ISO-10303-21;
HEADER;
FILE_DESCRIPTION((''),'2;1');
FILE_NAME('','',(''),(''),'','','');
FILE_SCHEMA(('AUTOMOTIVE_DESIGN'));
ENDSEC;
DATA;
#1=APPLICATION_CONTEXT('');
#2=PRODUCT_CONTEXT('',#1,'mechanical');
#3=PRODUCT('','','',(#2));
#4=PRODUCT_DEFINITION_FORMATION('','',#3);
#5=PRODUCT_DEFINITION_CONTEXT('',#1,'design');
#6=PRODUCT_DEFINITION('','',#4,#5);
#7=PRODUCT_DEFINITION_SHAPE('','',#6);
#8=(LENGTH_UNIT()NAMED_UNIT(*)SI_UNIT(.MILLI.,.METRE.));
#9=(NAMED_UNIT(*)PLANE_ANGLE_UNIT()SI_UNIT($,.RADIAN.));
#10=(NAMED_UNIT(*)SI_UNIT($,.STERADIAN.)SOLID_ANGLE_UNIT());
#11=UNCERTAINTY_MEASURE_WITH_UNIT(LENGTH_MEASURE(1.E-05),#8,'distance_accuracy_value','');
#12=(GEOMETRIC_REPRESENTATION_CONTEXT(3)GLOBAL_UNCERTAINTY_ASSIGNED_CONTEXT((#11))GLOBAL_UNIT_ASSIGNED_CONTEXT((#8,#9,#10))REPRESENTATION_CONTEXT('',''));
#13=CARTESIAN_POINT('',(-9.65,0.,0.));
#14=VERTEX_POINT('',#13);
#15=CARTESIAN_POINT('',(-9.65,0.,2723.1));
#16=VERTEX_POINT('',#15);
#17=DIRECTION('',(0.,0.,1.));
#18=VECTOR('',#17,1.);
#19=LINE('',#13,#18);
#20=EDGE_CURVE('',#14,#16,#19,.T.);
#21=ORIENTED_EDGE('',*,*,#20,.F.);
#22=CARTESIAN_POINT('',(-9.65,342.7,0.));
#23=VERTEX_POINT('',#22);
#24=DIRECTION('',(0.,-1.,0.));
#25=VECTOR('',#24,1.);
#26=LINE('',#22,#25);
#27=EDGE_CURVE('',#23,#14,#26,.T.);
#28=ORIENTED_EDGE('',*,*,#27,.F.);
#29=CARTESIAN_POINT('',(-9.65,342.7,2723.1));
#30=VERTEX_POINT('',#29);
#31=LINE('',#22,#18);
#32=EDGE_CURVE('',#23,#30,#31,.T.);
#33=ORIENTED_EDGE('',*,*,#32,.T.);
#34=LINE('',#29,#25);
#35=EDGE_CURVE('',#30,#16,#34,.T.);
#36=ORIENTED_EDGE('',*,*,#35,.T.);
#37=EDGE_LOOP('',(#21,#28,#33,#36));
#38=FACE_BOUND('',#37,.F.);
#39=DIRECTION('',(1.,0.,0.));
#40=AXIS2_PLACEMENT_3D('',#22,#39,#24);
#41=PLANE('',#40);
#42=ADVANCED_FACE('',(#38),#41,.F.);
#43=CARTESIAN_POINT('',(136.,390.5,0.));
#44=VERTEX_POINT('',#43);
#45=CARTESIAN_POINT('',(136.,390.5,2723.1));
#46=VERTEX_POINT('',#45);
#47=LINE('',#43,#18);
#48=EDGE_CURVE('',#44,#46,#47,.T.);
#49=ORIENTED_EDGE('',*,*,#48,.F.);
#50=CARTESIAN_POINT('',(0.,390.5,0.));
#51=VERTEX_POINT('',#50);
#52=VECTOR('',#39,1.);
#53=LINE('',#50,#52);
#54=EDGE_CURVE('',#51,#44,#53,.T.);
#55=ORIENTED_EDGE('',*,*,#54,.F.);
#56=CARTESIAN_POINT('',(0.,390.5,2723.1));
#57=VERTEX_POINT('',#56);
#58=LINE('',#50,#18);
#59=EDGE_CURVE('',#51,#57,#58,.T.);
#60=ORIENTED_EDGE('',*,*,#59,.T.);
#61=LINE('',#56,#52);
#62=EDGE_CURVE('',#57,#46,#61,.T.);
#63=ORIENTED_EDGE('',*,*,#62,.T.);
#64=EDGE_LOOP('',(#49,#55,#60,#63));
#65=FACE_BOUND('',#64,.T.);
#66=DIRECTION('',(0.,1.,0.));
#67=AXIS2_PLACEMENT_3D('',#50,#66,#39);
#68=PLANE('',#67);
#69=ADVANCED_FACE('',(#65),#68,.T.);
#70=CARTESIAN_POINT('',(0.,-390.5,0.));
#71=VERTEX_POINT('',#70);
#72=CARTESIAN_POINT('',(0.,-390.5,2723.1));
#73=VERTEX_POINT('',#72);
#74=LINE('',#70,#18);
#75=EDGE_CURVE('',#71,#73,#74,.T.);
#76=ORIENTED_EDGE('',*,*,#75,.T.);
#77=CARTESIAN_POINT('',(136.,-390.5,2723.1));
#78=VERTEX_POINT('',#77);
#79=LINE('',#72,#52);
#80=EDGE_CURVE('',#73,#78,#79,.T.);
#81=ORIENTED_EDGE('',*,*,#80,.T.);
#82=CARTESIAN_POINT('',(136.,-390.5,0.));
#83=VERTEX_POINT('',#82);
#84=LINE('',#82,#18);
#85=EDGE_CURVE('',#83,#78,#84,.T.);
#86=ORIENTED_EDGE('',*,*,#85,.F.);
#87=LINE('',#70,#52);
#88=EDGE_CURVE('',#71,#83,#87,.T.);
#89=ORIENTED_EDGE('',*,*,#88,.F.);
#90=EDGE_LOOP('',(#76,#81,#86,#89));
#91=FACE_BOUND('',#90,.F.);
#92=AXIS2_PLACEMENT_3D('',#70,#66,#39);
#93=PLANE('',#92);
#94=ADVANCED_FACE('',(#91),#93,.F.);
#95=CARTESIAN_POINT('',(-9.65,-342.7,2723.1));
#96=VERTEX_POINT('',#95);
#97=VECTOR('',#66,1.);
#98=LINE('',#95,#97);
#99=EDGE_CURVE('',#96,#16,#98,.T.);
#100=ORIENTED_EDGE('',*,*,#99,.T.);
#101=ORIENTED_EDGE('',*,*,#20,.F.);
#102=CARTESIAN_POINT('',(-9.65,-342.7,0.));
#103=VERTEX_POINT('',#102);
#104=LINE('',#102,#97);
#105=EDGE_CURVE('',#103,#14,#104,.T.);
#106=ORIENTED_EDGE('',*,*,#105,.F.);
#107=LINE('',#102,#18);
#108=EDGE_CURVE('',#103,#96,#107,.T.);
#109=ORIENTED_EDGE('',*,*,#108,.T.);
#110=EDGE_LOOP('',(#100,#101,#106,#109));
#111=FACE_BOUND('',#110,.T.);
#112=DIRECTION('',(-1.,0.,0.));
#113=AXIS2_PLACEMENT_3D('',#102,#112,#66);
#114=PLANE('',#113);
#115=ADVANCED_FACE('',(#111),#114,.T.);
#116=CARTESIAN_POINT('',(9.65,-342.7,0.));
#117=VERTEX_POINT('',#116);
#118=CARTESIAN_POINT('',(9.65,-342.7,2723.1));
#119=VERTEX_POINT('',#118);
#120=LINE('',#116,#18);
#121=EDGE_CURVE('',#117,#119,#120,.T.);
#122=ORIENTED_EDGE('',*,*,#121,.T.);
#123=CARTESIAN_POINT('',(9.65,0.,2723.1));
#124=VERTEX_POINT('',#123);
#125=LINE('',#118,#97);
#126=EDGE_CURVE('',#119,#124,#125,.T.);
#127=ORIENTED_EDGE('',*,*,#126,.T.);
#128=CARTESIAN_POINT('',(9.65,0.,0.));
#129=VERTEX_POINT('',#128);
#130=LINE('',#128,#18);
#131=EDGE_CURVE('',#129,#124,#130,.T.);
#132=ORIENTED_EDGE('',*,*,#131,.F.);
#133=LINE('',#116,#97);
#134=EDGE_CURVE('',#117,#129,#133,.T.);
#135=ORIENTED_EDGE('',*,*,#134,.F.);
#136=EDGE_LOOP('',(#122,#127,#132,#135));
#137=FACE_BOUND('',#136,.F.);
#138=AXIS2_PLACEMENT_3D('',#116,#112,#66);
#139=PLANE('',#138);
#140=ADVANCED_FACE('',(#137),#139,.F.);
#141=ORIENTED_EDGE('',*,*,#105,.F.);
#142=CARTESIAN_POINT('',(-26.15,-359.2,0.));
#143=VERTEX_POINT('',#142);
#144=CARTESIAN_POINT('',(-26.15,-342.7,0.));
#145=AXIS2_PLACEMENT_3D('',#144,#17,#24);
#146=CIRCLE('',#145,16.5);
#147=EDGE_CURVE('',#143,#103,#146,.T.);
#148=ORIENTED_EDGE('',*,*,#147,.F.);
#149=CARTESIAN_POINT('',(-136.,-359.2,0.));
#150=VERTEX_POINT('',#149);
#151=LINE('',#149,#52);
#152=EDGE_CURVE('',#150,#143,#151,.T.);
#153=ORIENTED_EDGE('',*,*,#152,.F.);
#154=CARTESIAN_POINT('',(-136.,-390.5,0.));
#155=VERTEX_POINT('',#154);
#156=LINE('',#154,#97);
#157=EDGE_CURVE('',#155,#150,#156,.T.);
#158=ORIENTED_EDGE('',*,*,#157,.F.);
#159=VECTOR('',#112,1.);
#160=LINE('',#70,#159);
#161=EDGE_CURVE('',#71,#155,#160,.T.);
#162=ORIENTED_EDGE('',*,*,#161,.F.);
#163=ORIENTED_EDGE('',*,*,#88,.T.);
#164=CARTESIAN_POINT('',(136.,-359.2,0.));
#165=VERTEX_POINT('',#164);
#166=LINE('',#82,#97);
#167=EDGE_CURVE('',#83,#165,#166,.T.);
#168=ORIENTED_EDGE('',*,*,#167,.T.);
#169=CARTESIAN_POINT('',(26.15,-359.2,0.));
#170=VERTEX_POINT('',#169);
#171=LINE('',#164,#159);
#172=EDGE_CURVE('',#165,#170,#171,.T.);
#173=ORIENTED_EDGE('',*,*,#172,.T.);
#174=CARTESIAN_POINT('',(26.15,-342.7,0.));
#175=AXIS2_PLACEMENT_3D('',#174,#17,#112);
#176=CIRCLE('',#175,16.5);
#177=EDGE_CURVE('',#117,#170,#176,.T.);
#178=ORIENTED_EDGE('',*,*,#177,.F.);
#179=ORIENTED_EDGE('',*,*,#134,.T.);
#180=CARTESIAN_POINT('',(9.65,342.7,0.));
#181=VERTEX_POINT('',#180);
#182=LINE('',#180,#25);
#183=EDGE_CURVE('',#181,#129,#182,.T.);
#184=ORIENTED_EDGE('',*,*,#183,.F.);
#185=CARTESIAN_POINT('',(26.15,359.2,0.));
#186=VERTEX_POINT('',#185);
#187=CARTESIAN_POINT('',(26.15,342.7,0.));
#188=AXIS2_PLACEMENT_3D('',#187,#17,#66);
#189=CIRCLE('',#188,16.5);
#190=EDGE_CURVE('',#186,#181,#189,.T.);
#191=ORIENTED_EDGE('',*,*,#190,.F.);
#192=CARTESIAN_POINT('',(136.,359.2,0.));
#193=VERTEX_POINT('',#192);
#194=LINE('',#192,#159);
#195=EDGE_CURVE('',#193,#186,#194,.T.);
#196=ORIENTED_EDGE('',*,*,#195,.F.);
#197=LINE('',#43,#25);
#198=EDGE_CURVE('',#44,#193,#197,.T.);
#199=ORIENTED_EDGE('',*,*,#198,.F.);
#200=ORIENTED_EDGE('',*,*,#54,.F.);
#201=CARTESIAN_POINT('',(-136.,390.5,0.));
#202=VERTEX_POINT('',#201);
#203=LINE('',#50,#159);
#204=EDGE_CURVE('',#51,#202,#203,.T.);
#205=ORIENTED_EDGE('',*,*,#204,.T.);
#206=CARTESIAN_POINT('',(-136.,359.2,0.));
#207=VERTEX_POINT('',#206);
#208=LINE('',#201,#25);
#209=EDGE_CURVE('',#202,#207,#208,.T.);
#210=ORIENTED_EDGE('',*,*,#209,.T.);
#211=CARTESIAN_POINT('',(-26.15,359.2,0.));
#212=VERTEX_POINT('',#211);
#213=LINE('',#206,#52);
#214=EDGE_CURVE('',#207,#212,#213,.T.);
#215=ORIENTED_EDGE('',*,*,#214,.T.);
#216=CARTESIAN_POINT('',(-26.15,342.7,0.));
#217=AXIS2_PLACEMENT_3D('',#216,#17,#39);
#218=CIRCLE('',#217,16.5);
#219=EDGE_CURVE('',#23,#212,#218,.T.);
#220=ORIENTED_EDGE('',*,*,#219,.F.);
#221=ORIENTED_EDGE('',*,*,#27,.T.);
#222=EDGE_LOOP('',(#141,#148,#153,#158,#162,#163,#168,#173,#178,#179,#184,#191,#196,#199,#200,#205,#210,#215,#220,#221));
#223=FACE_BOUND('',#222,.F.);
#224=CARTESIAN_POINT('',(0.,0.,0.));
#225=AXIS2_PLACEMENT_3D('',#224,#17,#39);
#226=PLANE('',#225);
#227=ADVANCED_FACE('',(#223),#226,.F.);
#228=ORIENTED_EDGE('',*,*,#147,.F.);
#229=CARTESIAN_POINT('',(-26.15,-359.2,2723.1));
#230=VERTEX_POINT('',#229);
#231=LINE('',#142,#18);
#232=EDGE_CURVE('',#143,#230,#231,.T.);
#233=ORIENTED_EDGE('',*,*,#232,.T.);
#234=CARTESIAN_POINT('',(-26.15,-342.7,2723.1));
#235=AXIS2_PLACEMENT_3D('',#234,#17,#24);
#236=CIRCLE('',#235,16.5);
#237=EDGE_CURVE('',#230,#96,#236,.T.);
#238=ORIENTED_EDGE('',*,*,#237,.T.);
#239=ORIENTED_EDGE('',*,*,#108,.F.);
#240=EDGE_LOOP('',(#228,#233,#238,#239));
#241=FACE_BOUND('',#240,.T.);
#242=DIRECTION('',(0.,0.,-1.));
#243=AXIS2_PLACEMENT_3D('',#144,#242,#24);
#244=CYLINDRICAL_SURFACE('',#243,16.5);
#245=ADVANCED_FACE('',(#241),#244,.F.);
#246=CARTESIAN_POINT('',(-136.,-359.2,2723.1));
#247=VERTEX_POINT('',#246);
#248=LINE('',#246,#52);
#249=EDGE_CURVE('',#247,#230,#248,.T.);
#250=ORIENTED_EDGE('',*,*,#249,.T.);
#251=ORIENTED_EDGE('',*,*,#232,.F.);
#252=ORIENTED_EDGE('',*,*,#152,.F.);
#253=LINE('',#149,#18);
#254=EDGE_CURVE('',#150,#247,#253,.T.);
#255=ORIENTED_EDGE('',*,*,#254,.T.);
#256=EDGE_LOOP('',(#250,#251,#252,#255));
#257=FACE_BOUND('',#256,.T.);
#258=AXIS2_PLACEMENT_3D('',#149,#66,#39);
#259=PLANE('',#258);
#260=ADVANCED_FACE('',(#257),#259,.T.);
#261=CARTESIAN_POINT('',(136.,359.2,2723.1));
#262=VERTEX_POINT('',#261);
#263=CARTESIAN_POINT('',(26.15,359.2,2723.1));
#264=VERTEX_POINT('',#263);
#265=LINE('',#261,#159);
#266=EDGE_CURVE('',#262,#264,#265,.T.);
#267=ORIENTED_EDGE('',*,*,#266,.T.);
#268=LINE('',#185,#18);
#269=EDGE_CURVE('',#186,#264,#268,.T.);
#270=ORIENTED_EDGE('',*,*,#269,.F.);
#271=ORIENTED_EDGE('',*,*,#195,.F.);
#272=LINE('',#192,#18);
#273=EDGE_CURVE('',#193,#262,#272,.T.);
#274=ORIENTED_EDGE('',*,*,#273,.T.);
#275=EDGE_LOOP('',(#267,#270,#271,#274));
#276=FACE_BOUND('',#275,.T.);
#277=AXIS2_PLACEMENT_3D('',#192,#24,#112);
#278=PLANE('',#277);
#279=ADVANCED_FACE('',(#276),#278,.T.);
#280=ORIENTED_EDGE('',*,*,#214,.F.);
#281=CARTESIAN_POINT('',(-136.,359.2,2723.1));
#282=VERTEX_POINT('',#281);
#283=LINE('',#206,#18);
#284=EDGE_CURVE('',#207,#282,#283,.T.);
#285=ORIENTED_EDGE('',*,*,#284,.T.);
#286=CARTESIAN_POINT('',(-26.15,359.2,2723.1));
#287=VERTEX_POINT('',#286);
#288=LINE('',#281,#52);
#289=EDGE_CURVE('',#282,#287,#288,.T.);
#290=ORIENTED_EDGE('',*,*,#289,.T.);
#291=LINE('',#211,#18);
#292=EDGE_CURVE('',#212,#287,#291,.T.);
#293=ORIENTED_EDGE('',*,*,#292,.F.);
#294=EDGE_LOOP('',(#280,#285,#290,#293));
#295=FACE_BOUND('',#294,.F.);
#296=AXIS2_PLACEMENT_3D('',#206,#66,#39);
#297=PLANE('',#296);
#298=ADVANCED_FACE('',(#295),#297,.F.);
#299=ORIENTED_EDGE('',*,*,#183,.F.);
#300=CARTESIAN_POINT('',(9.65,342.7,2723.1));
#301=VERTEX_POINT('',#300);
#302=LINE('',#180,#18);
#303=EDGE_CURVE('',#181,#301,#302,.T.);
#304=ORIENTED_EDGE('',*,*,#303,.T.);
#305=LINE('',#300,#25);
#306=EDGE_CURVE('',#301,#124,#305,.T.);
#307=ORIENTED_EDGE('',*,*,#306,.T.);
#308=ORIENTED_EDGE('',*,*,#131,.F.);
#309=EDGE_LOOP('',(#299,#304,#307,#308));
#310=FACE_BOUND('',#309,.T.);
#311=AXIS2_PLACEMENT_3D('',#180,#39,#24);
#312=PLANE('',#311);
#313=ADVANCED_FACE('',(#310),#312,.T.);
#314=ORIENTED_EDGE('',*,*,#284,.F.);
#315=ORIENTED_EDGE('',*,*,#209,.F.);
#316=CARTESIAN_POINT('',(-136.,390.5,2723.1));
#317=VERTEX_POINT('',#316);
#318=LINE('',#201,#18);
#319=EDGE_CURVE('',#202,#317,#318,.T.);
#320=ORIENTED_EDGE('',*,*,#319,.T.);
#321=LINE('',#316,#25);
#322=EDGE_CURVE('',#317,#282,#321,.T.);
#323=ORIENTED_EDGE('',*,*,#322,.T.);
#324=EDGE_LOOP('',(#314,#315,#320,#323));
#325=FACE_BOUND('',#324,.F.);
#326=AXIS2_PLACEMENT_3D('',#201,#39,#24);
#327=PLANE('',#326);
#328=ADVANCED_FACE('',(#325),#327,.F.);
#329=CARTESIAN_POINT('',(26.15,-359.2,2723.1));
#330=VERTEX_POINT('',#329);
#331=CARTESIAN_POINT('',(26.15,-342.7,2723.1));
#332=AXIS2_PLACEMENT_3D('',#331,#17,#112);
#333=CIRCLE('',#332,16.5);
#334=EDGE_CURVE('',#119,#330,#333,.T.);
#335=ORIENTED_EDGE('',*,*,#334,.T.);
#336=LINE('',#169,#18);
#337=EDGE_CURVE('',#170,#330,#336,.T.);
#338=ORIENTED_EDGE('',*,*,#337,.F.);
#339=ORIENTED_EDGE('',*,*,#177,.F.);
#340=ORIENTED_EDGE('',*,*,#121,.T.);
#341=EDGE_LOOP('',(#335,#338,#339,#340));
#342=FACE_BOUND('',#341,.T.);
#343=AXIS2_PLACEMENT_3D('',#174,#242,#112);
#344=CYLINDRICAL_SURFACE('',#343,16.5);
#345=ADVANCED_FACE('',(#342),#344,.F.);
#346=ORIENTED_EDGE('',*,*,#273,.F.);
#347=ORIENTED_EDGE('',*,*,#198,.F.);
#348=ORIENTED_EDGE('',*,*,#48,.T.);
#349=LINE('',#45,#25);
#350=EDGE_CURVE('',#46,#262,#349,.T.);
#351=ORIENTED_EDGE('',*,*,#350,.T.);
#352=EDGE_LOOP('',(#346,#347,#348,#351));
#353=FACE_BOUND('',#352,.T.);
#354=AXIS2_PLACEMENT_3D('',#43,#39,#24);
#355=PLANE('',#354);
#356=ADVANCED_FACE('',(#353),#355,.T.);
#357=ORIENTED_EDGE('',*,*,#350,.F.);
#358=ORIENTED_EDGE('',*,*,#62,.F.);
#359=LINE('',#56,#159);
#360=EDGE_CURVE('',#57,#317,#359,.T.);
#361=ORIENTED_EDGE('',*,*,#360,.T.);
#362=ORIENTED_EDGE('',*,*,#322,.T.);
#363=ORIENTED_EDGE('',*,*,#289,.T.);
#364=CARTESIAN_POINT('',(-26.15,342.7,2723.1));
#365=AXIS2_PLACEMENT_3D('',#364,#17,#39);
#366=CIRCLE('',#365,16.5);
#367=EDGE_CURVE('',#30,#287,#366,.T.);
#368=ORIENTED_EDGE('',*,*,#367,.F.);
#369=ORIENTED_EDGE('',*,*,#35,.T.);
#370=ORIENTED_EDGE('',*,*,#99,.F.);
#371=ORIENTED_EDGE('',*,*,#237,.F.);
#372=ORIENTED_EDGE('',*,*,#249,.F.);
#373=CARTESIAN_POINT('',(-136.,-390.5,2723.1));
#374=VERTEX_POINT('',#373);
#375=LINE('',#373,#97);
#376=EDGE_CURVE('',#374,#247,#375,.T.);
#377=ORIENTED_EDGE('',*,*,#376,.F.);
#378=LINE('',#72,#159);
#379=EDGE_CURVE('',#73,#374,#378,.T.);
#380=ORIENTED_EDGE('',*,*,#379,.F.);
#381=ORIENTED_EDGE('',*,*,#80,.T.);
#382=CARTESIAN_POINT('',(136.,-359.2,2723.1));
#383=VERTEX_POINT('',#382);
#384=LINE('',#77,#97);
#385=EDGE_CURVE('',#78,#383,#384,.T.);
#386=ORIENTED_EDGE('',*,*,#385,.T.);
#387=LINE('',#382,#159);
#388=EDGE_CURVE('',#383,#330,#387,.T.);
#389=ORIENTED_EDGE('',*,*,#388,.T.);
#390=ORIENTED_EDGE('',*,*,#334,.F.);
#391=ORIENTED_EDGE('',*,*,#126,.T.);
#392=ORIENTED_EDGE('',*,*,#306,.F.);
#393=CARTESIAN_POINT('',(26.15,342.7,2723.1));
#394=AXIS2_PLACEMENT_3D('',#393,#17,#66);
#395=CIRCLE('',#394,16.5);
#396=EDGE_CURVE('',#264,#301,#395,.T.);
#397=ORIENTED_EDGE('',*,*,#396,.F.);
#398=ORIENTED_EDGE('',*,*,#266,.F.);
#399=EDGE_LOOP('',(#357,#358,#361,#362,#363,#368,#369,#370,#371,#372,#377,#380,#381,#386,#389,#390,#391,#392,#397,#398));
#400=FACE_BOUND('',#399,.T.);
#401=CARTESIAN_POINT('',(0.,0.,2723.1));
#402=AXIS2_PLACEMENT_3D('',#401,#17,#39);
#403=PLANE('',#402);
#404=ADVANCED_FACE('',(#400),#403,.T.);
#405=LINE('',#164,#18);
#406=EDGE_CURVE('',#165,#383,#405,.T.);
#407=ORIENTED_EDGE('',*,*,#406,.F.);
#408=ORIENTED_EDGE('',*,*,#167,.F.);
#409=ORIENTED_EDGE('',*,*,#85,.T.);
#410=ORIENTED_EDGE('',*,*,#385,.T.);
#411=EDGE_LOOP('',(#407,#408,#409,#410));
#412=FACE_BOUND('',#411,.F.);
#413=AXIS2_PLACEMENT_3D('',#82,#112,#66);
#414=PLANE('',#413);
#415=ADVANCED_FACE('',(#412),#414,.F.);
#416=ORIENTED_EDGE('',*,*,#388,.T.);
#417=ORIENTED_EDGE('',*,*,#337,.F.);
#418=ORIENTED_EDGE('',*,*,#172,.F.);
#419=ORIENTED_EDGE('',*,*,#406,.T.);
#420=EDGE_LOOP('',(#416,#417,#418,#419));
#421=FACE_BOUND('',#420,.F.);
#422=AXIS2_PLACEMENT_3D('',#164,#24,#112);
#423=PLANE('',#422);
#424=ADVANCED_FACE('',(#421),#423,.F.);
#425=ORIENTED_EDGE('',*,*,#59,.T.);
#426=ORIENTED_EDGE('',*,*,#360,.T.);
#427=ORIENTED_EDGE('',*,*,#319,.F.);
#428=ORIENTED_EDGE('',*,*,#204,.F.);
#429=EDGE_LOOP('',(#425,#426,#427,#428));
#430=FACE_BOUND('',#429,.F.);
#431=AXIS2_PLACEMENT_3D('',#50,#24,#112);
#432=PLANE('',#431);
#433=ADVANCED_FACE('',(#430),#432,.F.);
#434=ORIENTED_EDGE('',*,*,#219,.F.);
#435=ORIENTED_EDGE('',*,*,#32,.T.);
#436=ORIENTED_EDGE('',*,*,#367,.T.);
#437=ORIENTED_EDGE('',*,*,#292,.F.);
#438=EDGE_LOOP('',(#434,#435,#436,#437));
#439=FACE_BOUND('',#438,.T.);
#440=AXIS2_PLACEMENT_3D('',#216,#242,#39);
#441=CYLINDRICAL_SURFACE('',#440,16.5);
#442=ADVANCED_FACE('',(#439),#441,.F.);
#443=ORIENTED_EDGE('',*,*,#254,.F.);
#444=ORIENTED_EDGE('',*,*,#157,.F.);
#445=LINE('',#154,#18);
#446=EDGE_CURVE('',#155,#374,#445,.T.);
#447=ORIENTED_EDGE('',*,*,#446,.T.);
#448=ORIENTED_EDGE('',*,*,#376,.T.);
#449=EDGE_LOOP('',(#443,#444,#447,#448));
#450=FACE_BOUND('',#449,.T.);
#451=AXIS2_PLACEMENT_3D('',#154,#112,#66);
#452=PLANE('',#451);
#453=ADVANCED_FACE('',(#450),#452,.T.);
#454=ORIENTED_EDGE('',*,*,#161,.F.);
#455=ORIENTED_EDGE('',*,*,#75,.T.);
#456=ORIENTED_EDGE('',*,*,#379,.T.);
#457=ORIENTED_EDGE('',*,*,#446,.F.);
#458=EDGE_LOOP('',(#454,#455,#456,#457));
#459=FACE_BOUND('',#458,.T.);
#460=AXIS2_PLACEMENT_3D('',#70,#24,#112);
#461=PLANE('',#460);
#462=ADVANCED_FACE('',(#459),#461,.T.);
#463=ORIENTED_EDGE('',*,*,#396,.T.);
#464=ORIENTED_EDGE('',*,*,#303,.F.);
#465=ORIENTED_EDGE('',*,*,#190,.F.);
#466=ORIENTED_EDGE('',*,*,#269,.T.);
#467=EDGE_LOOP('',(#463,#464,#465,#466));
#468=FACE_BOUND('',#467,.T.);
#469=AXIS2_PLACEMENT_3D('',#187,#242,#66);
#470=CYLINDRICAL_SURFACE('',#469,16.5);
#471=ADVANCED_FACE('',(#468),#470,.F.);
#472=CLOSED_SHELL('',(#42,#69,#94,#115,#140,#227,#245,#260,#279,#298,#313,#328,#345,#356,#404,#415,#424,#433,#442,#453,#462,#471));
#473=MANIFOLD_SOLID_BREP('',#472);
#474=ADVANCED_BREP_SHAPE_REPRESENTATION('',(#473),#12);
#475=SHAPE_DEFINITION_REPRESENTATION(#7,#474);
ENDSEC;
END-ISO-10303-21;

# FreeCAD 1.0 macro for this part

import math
import FreeCAD as App
import Part
import Sketcher
from FreeCAD import Vector

doc = App.newDocument("Part")
body = doc.addObject("PartDesign::Body", "Body")

sketch1 = doc.addObject("Sketcher::SketchObject", "Sketch")
body.addObject(sketch1)
sketch1.AttachmentSupport = (doc.XY_Plane, [""])
sketch1.MapMode = "FlatFace"
sketch1.addGeometry([
    Part.LineSegment(Vector(-136, -359, 0), Vector(-136, -390, 0)),
    Part.LineSegment(Vector(-136, -390, 0), Vector(136, -390, 0)),
    Part.LineSegment(Vector(136, -390, 0), Vector(136, -359, 0)),
    Part.LineSegment(Vector(136, -359, 0), Vector(26, -359, 0)),
    Part.ArcOfCircle(Part.Circle(Vector(26, -343, 0), Vector(0, 0, 1), 16), math.radians(180), math.radians(270)),
    Part.LineSegment(Vector(10, -343, 0), Vector(10, 343, 0)),
    Part.ArcOfCircle(Part.Circle(Vector(26, 343, 0), Vector(0, 0, 1), 16), math.radians(90), math.radians(180)),
    Part.LineSegment(Vector(26, 359, 0), Vector(136, 359, 0)),
    Part.LineSegment(Vector(136, 359, 0), Vector(136, 390, 0)),
    Part.LineSegment(Vector(136, 390, 0), Vector(-136, 390, 0)),
    Part.LineSegment(Vector(-136, 390, 0), Vector(-136, 359, 0)),
    Part.LineSegment(Vector(-136, 359, 0), Vector(-26, 359, 0)),
    Part.ArcOfCircle(Part.Circle(Vector(-26, 343, 0), Vector(0, 0, 1), 16), math.radians(0), math.radians(90)),
    Part.LineSegment(Vector(-10, 343, 0), Vector(-10, -343, 0)),
    Part.ArcOfCircle(Part.Circle(Vector(-26, -343, 0), Vector(0, 0, 1), 16), math.radians(-90), math.radians(0)),
    Part.LineSegment(Vector(-26, -359, 0), Vector(-136, -359, 0)),
], False)
sketch1.addConstraint([
    Sketcher.Constraint("Coincident", 0, 2, 1, 1),
    Sketcher.Constraint("Coincident", 1, 2, 2, 1),
    Sketcher.Constraint("Coincident", 2, 2, 3, 1),
    Sketcher.Constraint("Tangent", 3, 2, 4, 2),
    Sketcher.Constraint("Tangent", 4, 1, 5, 1),
    Sketcher.Constraint("Tangent", 5, 2, 6, 2),
    Sketcher.Constraint("Tangent", 6, 1, 7, 1),
    Sketcher.Constraint("Coincident", 7, 2, 8, 1),
    Sketcher.Constraint("Coincident", 8, 2, 9, 1),
    Sketcher.Constraint("Coincident", 9, 2, 10, 1),
    Sketcher.Constraint("Coincident", 10, 2, 11, 1),
    Sketcher.Constraint("Tangent", 11, 2, 12, 2),
    Sketcher.Constraint("Tangent", 12, 1, 13, 1),
    Sketcher.Constraint("Tangent", 13, 2, 14, 2),
    Sketcher.Constraint("Tangent", 14, 1, 15, 1),
    Sketcher.Constraint("Coincident", 15, 2, 0, 1),
    Sketcher.Constraint("Vertical", 0),
    Sketcher.Constraint("Horizontal", 1),
    Sketcher.Constraint("Vertical", 2),
    Sketcher.Constraint("Horizontal", 3),
    Sketcher.Constraint("Vertical", 5),
    Sketcher.Constraint("Horizontal", 7),
    Sketcher.Constraint("Vertical", 8),
    Sketcher.Constraint("Horizontal", 9),
    Sketcher.Constraint("Vertical", 10),
    Sketcher.Constraint("Horizontal", 11),
    Sketcher.Constraint("Vertical", 13),
    Sketcher.Constraint("Horizontal", 15),
    Sketcher.Constraint("Equal", 4, 6),
    Sketcher.Constraint("Equal", 6, 12),
    Sketcher.Constraint("Equal", 12, 14),
    Sketcher.Constraint("Symmetric", 4, 3, 12, 3, -1, 1),
    Sketcher.Constraint("Symmetric", 0, 2, 8, 2, -1, 1),
    Sketcher.Constraint("Symmetric", 7, 2, 10, 2, -2),
    Sketcher.Constraint("Symmetric", 2, 2, 15, 2, -2),
    Sketcher.Constraint("Radius", 4, 16.5),
    Sketcher.Constraint("DistanceY", 0, 2, 0, 1, 31.3),
    Sketcher.Constraint("DistanceX", 0, 2, -1, 1, 136.0),
    Sketcher.Constraint("DistanceY", 0, 2, -1, 1, 390.5),
    Sketcher.Constraint("DistanceX", -1, 1, 4, 1, 9.65),
])
pad1 = doc.addObject("PartDesign::Pad", "Pad")
body.addObject(pad1)
pad1.Profile = sketch1
pad1.Length = 2723.1

doc.recompute()
